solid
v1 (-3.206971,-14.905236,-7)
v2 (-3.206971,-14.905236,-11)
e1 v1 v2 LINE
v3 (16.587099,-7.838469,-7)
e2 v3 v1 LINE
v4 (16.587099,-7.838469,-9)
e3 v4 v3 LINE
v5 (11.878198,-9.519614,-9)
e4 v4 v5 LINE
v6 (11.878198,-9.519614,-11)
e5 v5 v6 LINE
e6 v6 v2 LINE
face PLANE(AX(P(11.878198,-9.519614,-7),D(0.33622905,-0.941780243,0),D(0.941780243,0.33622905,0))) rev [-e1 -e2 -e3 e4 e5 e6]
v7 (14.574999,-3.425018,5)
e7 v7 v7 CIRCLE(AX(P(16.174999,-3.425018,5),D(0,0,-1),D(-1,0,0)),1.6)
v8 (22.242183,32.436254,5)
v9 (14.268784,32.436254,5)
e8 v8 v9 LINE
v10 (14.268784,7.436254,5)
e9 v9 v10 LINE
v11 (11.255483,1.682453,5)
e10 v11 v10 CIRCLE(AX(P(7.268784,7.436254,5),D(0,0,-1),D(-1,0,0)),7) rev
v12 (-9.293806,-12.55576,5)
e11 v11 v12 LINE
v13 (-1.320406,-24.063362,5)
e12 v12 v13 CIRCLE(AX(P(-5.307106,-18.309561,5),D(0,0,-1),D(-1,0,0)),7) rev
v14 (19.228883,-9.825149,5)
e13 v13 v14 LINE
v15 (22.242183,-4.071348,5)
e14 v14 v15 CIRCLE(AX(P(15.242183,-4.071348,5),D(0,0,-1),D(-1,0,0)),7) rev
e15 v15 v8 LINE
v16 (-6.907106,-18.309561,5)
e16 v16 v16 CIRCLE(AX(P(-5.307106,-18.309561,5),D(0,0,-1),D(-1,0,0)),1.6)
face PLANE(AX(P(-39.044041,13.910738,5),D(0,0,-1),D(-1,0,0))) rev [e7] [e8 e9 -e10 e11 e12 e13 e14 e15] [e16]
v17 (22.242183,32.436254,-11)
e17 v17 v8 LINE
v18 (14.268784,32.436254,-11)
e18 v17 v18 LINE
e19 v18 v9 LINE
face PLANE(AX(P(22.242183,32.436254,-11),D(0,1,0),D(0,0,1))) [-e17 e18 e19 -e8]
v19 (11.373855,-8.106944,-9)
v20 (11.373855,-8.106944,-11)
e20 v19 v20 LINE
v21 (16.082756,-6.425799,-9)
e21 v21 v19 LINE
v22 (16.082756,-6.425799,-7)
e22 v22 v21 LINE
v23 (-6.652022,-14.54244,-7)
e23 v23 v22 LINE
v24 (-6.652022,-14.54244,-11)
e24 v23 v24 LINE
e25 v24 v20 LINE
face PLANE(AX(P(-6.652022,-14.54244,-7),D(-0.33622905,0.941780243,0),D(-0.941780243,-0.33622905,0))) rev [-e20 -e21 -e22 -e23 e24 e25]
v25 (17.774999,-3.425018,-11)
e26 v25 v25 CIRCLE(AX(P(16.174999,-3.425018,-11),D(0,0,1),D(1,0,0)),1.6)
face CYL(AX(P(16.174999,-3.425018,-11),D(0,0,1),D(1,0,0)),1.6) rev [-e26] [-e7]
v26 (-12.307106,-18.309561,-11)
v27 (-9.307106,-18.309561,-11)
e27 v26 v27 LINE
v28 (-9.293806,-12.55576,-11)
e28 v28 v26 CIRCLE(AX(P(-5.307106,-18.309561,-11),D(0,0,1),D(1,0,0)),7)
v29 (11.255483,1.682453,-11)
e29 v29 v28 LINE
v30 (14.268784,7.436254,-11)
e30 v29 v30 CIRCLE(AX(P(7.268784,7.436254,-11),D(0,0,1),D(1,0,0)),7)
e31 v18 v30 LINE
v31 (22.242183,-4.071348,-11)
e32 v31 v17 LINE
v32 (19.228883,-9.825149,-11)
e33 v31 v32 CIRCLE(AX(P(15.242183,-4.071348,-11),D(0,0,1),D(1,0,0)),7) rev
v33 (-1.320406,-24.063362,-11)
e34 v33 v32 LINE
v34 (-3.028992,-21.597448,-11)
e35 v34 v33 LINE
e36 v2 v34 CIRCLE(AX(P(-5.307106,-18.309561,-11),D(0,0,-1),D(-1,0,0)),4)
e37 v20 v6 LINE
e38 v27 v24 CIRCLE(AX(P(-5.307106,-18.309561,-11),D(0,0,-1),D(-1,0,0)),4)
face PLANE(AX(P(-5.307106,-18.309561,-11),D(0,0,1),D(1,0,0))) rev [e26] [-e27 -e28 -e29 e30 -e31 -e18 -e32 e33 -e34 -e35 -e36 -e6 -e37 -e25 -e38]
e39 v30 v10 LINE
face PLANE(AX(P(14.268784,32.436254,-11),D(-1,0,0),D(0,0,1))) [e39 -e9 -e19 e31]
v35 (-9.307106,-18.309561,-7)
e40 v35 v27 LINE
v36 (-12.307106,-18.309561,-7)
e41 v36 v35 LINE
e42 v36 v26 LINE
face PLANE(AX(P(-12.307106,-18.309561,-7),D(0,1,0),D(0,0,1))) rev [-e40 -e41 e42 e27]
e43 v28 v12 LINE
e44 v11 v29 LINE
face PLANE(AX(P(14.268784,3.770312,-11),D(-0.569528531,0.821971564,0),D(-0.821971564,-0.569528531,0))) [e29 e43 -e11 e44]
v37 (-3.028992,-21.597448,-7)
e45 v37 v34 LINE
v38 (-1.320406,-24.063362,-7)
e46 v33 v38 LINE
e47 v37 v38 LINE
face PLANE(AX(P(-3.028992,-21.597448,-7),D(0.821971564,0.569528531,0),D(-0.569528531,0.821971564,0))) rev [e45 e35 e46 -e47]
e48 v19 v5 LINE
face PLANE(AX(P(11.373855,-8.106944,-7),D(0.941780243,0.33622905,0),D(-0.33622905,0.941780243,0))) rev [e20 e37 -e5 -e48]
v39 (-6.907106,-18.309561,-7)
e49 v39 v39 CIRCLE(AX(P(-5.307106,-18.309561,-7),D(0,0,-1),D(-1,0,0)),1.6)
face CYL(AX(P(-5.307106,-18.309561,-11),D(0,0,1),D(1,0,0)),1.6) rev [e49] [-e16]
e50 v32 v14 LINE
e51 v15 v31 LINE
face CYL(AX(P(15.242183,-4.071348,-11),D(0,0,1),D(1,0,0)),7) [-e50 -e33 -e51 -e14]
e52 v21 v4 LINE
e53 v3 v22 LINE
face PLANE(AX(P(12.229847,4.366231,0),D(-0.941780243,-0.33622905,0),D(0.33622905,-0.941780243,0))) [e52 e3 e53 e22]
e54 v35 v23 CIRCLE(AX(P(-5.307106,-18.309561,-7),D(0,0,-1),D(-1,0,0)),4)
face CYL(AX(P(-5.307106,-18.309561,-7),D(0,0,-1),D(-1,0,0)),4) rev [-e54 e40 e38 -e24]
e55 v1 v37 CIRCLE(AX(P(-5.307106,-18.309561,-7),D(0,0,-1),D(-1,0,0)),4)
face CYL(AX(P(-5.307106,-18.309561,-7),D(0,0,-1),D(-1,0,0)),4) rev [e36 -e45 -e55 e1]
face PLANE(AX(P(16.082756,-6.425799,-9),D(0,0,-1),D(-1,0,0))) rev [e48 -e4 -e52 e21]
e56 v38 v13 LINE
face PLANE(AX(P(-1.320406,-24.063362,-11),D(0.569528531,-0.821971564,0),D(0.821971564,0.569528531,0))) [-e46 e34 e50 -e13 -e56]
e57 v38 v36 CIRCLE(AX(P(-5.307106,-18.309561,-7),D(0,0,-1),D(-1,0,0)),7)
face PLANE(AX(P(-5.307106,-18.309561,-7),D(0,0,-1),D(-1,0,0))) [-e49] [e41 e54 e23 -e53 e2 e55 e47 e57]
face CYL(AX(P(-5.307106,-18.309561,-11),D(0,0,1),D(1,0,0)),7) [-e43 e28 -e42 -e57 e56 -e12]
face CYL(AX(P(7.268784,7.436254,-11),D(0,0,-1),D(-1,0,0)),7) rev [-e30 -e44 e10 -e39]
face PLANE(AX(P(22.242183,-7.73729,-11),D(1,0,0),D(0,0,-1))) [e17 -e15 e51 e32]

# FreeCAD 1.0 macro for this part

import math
import FreeCAD as App
import Part
import Sketcher
Q = App.Units.Quantity


def edges_at(feature, points):
    """Names of the edges that pass closest to the given points."""
    edges = feature.Shape.Edges
    near = lambda p: min(range(len(edges)), key=lambda i: edges[i].distToShape(Part.Vertex(*p))[0])
    return sorted({f"Edge{near(p) + 1}" for p in points})

doc = App.newDocument("Part")
params = doc.addObject("Spreadsheet::Sheet", "Params")
for row, (alias, value) in enumerate([
    ("sketch1_radius", "7 mm"),
    ("pad1_length", "22 mm"),
    ("sketch2_radius", "4 mm"),
    ("sketch2_radius2", "7 mm"),
    ("sketch2_length", "1.5 mm"),
    ("pocket1_length", "4 mm"),
    ("sketch3_width", "2 mm"),
    ("sketch3_height", "1.5 mm"),
    ("pocket2_length", "5 mm"),
    ("fillet_radius", "7 mm"),
    ("sketch5_diameter", "3.2 mm"),
], start=1):
    params.set(f"A{row}", alias)
    params.set(f"B{row}", "=" + value)
    params.setAlias(f"B{row}", alias)

body = doc.addObject("PartDesign::Body", "Body")

sketch1 = doc.addObject("Sketcher::SketchObject", "Sketch")
body.addObject(sketch1)
sketch1.AttachmentSupport = (doc.XY_Plane, [""])
sketch1.MapMode = "FlatFace"
sketch1.AttachmentOffset = App.Placement(App.Vector(0, 0, 11), App.Rotation())
sketch1.addGeometry([
    Part.LineSegment(App.Vector(22, 32, 0), App.Vector(14, 32, 0)),
    Part.LineSegment(App.Vector(14, 32, 0), App.Vector(14, 4, 0)),
    Part.LineSegment(App.Vector(14, 4, 0), App.Vector(-9, -13, 0)),
    Part.ArcOfCircle(Part.Circle(App.Vector(-5, -18, 0), App.Vector(0, 0, 1), 7), math.radians(125), math.radians(305)),
    Part.LineSegment(App.Vector(-1, -24, 0), App.Vector(22, -8, 0)),
    Part.LineSegment(App.Vector(22, -8, 0), App.Vector(22, 32, 0)),
], False)
sketch1.addConstraint([
    Sketcher.Constraint("Coincident", 0, 2, 1, 1),
    Sketcher.Constraint("Coincident", 1, 2, 2, 1),
    Sketcher.Constraint("Tangent", 2, 2, 3, 1),
    Sketcher.Constraint("Tangent", 3, 2, 4, 1),
    Sketcher.Constraint("Coincident", 4, 2, 5, 1),
    Sketcher.Constraint("Coincident", 5, 2, 0, 1),
    Sketcher.Constraint("Horizontal", 0),
    Sketcher.Constraint("Vertical", 1),
    Sketcher.Constraint("Vertical", 5),
    Sketcher.Constraint("Parallel", 2, 4),
    Sketcher.Constraint("Equal", 2, 4),
    Sketcher.Constraint("Radius", 3, Q("7 mm")),
    Sketcher.Constraint("DistanceX", 0, 2, 0, 1, Q("7.973399 mm")),
    Sketcher.Constraint("DistanceY", 1, 2, 1, 1, Q("28.665942 mm")),
    Sketcher.Constraint("DistanceY", 3, 3, -1, 1, Q("18.309561 mm")),
    Sketcher.Constraint("DistanceY", -1, 1, 1, 2, Q("3.770312 mm")),
    Sketcher.Constraint("DistanceX", 3, 3, -1, 1, Q("5.307106 mm")),
])
sketch1.setExpression("Constraints[11]", "Params.sketch1_radius")
pad1 = doc.addObject("PartDesign::Pad", "Pad")
body.addObject(pad1)
pad1.Profile = sketch1
pad1.setExpression("Length", "Params.pad1_length")
pad1.Reversed = True

sketch2 = doc.addObject("Sketcher::SketchObject", "Sketch001")
body.addObject(sketch2)
sketch2.AttachmentSupport = (doc.XY_Plane, [""])
sketch2.MapMode = "FlatFace"
sketch2.AttachmentOffset = App.Placement(App.Vector(0, 0, -7), App.Rotation())
sketch2.addGeometry([
    Part.LineSegment(App.Vector(-6.7, -14.5, 0), App.Vector(11.4, -8.1, 0)),
    Part.LineSegment(App.Vector(11.4, -8.1, 0), App.Vector(11.9, -9.5, 0)),
    Part.LineSegment(App.Vector(11.9, -9.5, 0), App.Vector(-3.2, -14.9, 0)),
    Part.ArcOfCircle(Part.Circle(App.Vector(-5.3, -18.3, 0), App.Vector(0, 0, 1), 4), math.radians(-55), math.radians(58)),
    Part.LineSegment(App.Vector(-3, -21.6, 0), App.Vector(-1.3, -24.1, 0)),
    Part.ArcOfCircle(Part.Circle(App.Vector(-5.3, -18.3, 0), App.Vector(0, 0, 1), 7), math.radians(-180), math.radians(-55)),
    Part.LineSegment(App.Vector(-12.3, -18.3, 0), App.Vector(-9.3, -18.3, 0)),
    Part.ArcOfCircle(Part.Circle(App.Vector(-5.3, -18.3, 0), App.Vector(0, 0, 1), 4), math.radians(110), math.radians(180)),
], False)
sketch2.addConstraint([
    Sketcher.Constraint("Coincident", 0, 2, 1, 1),
    Sketcher.Constraint("Coincident", 1, 2, 2, 1),
    Sketcher.Constraint("Coincident", 2, 2, 3, 2),
    Sketcher.Constraint("Coincident", 3, 1, 4, 1),
    Sketcher.Constraint("Coincident", 4, 2, 5, 2),
    Sketcher.Constraint("Coincident", 5, 1, 6, 1),
    Sketcher.Constraint("Coincident", 6, 2, 7, 2),
    Sketcher.Constraint("Tangent", 7, 1, 0, 1),
    Sketcher.Constraint("Horizontal", 6),
    Sketcher.Constraint("Coincident", 5, 3, 3, 3),
    Sketcher.Constraint("Coincident", 7, 3, 3, 3),
    Sketcher.Constraint("Equal", 3, 7),
    Sketcher.Constraint("Perpendicular", 0, 1),
    Sketcher.Constraint("Perpendicular", 1, 2),
    Sketcher.Constraint("Horizontal", 7, 3, 5, 1),
    Sketcher.Constraint("Radius", 3, Q("4 mm")),
    Sketcher.Constraint("Radius", 5, Q("7 mm")),
    Sketcher.Constraint("Distance", 1, Q("1.5 mm")),
    Sketcher.Constraint("DistanceX", -1, 1, 1, 2, Q("11.878198 mm")),
    Sketcher.Constraint("DistanceX", 7, 3, 4, 2, Q("3.9867 mm")),
    Sketcher.Constraint("DistanceY", 3, 3, -1, 1, Q("18.309561 mm")),
    Sketcher.Constraint("DistanceX", 2, 2, -1, 1, Q("3.206971 mm")),
    Sketcher.Constraint("DistanceX", 3, 1, -1, 1, Q("3.028992 mm")),
    Sketcher.Constraint("DistanceY", 7, 1, -1, 1, Q("14.54244 mm")),
])
sketch2.setExpression("Constraints[15]", "Params.sketch2_radius")
sketch2.setExpression("Constraints[16]", "Params.sketch2_radius2")
sketch2.setExpression("Constraints[17]", "Params.sketch2_length")
pocket1 = doc.addObject("PartDesign::Pocket", "Pocket")
body.addObject(pocket1)
pocket1.Profile = sketch2
pocket1.setExpression("Length", "Params.pocket1_length")

sketch3 = doc.addObject("Sketcher::SketchObject", "Sketch002")
body.addObject(sketch3)
sketch3.Placement = App.Placement(App.Vector(7.520945, 2.685085, 0), App.Rotation(App.Vector(0, 0, 1), App.Vector(-0.33622905, 0.941780243, 0), App.Vector(-0.941780243, -0.33622905, 0), "ZXY"))
sketch3.addGeometry([
    Part.LineSegment(App.Vector(-9, -11.5, 0), App.Vector(-9, -13, 0)),
    Part.LineSegment(App.Vector(-9, -13, 0), App.Vector(-7, -13, 0)),
    Part.LineSegment(App.Vector(-7, -13, 0), App.Vector(-7, -11.5, 0)),
    Part.LineSegment(App.Vector(-7, -11.5, 0), App.Vector(-9, -11.5, 0)),
], False)
sketch3.addConstraint([
    Sketcher.Constraint("Coincident", 0, 2, 1, 1),
    Sketcher.Constraint("Coincident", 1, 2, 2, 1),
    Sketcher.Constraint("Coincident", 2, 2, 3, 1),
    Sketcher.Constraint("Coincident", 3, 2, 0, 1),
    Sketcher.Constraint("Vertical", 0),
    Sketcher.Constraint("Horizontal", 1),
    Sketcher.Constraint("Vertical", 2),
    Sketcher.Constraint("Horizontal", 3),
    Sketcher.Constraint("DistanceX", 1, 1, 1, 2, Q("2 mm")),
    Sketcher.Constraint("DistanceY", 0, 2, 0, 1, Q("1.5 mm")),
    Sketcher.Constraint("DistanceX", 0, 2, -1, 1, Q("9 mm")),
    Sketcher.Constraint("DistanceY", 0, 2, -1, 1, Q("12.95918 mm")),
])
sketch3.setExpression("Constraints[8]", "Params.sketch3_width")
sketch3.setExpression("Constraints[9]", "Params.sketch3_height")
pocket2 = doc.addObject("PartDesign::Pocket", "Pocket001")
body.addObject(pocket2)
pocket2.Profile = sketch3
pocket2.setExpression("Length", "Params.pocket2_length")
doc.recompute()

fillet = doc.addObject("PartDesign::Fillet", "Fillet")
body.addObject(fillet)
fillet.Base = (pocket2, edges_at(pocket2, [(22.242, -7.737, 0), (14.269, 3.77, 0)]))
fillet.setExpression("Radius", "Params.fillet_radius")

sketch4 = doc.addObject("Sketcher::SketchObject", "Sketch003")
body.addObject(sketch4)
sketch4.Placement = App.Placement(App.Vector(10.836642, -15.639974, 0), App.Rotation(App.Vector(0.821971564, 0.569528531, 0), App.Vector(0, 0, 1), App.Vector(0.569528531, -0.821971564, 0), "ZXY"))
sketch4.addGeometry([
    Part.LineSegment(App.Vector(-24, 16, 0), App.Vector(-24, 5, 0)),
    Part.LineSegment(App.Vector(-24, 5, 0), App.Vector(51, 5, 0)),
    Part.LineSegment(App.Vector(51, 5, 0), App.Vector(51, 16, 0)),
    Part.LineSegment(App.Vector(51, 16, 0), App.Vector(-24, 16, 0)),
], False)
sketch4.addConstraint([
    Sketcher.Constraint("Coincident", 0, 2, 1, 1),
    Sketcher.Constraint("Coincident", 1, 2, 2, 1),
    Sketcher.Constraint("Coincident", 2, 2, 3, 1),
    Sketcher.Constraint("Coincident", 3, 2, 0, 1),
    Sketcher.Constraint("Vertical", 0),
    Sketcher.Constraint("Horizontal", 1),
    Sketcher.Constraint("Vertical", 2),
    Sketcher.Constraint("Horizontal", 3),
    Sketcher.Constraint("DistanceY", -1, 1, 0, 2, Q("5 mm")),
    Sketcher.Constraint("DistanceX", 1, 1, 1, 2, Q("74.866364 mm")),
    Sketcher.Constraint("DistanceY", 0, 2, 0, 1, Q("10.751938 mm")),
    Sketcher.Constraint("DistanceX", 0, 2, -1, 1, Q("24.170529 mm")),
])
pocket3 = doc.addObject("PartDesign::Pocket", "Pocket002")
body.addObject(pocket3)
pocket3.Profile = sketch4
pocket3.Type = "ThroughAll"
pocket3.Midplane = True

sketch5 = doc.addObject("Sketcher::SketchObject", "Sketch004")
body.addObject(sketch5)
sketch5.AttachmentSupport = (doc.XY_Plane, [""])
sketch5.MapMode = "FlatFace"
sketch5.AttachmentOffset = App.Placement(App.Vector(0, 0, 5), App.Rotation())
sketch5.addGeometry([
    Part.Circle(App.Vector(-5.3, -18.3, 0), App.Vector(0, 0, 1), 1.6),
    Part.Circle(App.Vector(16.2, -3.4, 0), App.Vector(0, 0, 1), 1.6),
], False)
sketch5.addConstraint([
    Sketcher.Constraint("Equal", 0, 1),
    Sketcher.Constraint("Diameter", 0, Q("3.2 mm")),
    Sketcher.Constraint("DistanceX", -1, 1, 1, 3, Q("16.174999 mm")),
    Sketcher.Constraint("DistanceY", 0, 3, -1, 1, Q("18.309561 mm")),
    Sketcher.Constraint("DistanceX", 0, 3, -1, 1, Q("5.307106 mm")),
    Sketcher.Constraint("DistanceY", 1, 3, -1, 1, Q("3.425018 mm")),
])
sketch5.setExpression("Constraints[1]", "Params.sketch5_diameter")
pocket4 = doc.addObject("PartDesign::Pocket", "Pocket003")
body.addObject(pocket4)
pocket4.Profile = sketch5
pocket4.Type = "ThroughAll"
pocket4.Midplane = True

doc.recompute()
